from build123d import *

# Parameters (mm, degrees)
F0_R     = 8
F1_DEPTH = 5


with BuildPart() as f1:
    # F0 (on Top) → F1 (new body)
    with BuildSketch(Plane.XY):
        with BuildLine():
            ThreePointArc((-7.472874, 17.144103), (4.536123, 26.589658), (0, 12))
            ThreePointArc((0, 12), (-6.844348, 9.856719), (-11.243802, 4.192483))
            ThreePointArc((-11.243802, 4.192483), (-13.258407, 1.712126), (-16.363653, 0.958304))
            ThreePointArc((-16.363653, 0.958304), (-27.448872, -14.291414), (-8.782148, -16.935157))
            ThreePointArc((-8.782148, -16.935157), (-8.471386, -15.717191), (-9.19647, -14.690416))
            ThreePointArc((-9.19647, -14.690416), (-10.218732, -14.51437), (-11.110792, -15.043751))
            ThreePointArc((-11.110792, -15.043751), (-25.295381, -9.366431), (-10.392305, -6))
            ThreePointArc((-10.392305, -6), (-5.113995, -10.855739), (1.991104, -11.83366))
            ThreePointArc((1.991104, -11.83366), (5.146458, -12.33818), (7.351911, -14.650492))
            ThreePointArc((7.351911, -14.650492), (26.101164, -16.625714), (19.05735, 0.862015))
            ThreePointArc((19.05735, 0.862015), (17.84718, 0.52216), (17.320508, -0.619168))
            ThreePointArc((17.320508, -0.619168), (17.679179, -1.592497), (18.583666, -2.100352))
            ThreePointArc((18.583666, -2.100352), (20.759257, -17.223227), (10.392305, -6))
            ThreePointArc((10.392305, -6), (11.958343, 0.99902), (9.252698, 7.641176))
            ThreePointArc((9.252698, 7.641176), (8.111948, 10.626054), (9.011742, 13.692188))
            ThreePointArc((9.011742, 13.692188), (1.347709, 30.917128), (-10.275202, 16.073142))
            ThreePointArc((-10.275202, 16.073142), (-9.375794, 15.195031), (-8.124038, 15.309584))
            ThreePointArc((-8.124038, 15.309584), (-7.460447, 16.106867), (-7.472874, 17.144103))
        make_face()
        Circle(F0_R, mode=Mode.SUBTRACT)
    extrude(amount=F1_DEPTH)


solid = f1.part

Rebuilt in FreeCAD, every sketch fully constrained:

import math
import FreeCAD as App
import Part
import Sketcher

V = App.Vector
Q = App.Units.Quantity

doc = App.newDocument("Part")
body = doc.addObject("PartDesign::Body", "Body")

# Sketch on XY plane
sketch1 = body.newObject("Sketcher::SketchObject", "Sketch")
sketch1.AttachmentSupport = (doc.getObject("XY_Plane"), [""])
sketch1.MapMode = "FlatFace"
sketch1.addGeometry(Part.ArcOfCircle(Part.Circle(V(0, 20, 0), V(0, 0, 1), 8), math.radians(-90), math.radians(201)), False)
sketch1.addGeometry(Part.ArcOfCircle(Part.Circle(V(0, 0, 0), V(0, 0, 1), 12), math.radians(90), math.radians(160)), False)
sketch1.addGeometry(Part.ArcOfCircle(Part.Circle(V(-15.9, 5.9, 0), V(0, 0, 1), 5), math.radians(-95), math.radians(-20)), False)
sketch1.addGeometry(Part.ArcOfCircle(Part.Circle(V(-17.3, -10, 0), V(0, 0, 1), 11), math.radians(85), math.radians(321)), False)
sketch1.addGeometry(Part.ArcOfCircle(Part.Circle(V(-9.9, -16, 0), V(0, 0, 1), 1.5), math.radians(-39), math.radians(60)), False)
sketch1.addGeometry(Part.ArcOfCircle(Part.Circle(V(-9.9, -16, 0), V(0, 0, 1), 1.5), math.radians(60), math.radians(141)), False)
sketch1.addGeometry(Part.ArcOfCircle(Part.Circle(V(-17.3, -10, 0), V(0, 0, 1), 8), math.radians(30), math.radians(321)), False)
sketch1.addGeometry(Part.ArcOfCircle(Part.Circle(V(0, 0, 0), V(0, 0, 1), 12), math.radians(-150), math.radians(-80)), False)
sketch1.addGeometry(Part.ArcOfCircle(Part.Circle(V(2.8, -16.8, 0), V(0, 0, 1), 5), math.radians(25), math.radians(100)), False)
sketch1.addGeometry(Part.ArcOfCircle(Part.Circle(V(17.3, -10, 0), V(0, 0, 1), 11), math.radians(-155), math.radians(81)), False)
sketch1.addGeometry(Part.ArcOfCircle(Part.Circle(V(18.8, -0.6, 0), V(0, 0, 1), 1.5), math.radians(81), math.radians(180)), False)
sketch1.addGeometry(Part.ArcOfCircle(Part.Circle(V(18.8, -0.6, 0), V(0, 0, 1), 1.5), math.radians(180), math.radians(261)), False)
sketch1.addGeometry(Part.ArcOfCircle(Part.Circle(V(17.3, -10, 0), V(0, 0, 1), 8), math.radians(150), math.radians(441)), False)
sketch1.addGeometry(Part.ArcOfCircle(Part.Circle(V(0, 0, 0), V(0, 0, 1), 12), math.radians(-30), math.radians(40)), False)
sketch1.addGeometry(Part.ArcOfCircle(Part.Circle(V(13.1, 10.8, 0), V(0, 0, 1), 5), math.radians(145), math.radians(220)), False)
sketch1.addGeometry(Part.ArcOfCircle(Part.Circle(V(0, 20, 0), V(0, 0, 1), 11), math.radians(-35), math.radians(201)), False)
sketch1.addGeometry(Part.ArcOfCircle(Part.Circle(V(-8.9, 16.6, 0), V(0, 0, 1), 1.5), math.radians(-159), math.radians(-60)), False)
sketch1.addGeometry(Part.ArcOfCircle(Part.Circle(V(-8.9, 16.6, 0), V(0, 0, 1), 1.5), math.radians(-60), math.radians(21)), False)
sketch1.addGeometry(Part.Circle(V(0, 0, 0), V(0, 0, 1), 8), False)
sketch1.addConstraint(Sketcher.Constraint("Tangent", 0, 1, 1, 1))
sketch1.addConstraint(Sketcher.Constraint("Tangent", 1, 2, 2, 2))
sketch1.addConstraint(Sketcher.Constraint("Tangent", 2, 1, 3, 1))
sketch1.addConstraint(Sketcher.Constraint("Tangent", 3, 2, 4, 1))
sketch1.addConstraint(Sketcher.Constraint("Tangent", 4, 2, 5, 1))
sketch1.addConstraint(Sketcher.Constraint("Tangent", 5, 2, 6, 2))
sketch1.addConstraint(Sketcher.Constraint("Tangent", 6, 1, 7, 1))
sketch1.addConstraint(Sketcher.Constraint("Tangent", 7, 2, 8, 2))
sketch1.addConstraint(Sketcher.Constraint("Tangent", 8, 1, 9, 1))
sketch1.addConstraint(Sketcher.Constraint("Tangent", 9, 2, 10, 1))
sketch1.addConstraint(Sketcher.Constraint("Tangent", 10, 2, 11, 1))
sketch1.addConstraint(Sketcher.Constraint("Tangent", 11, 2, 12, 2))
sketch1.addConstraint(Sketcher.Constraint("Tangent", 12, 1, 13, 1))
sketch1.addConstraint(Sketcher.Constraint("Tangent", 13, 2, 14, 2))
sketch1.addConstraint(Sketcher.Constraint("Tangent", 14, 1, 15, 1))
sketch1.addConstraint(Sketcher.Constraint("Tangent", 15, 2, 16, 1))
sketch1.addConstraint(Sketcher.Constraint("Tangent", 16, 2, 17, 1))
sketch1.addConstraint(Sketcher.Constraint("Tangent", 17, 2, 0, 2))
sketch1.addConstraint(Sketcher.Constraint("Coincident", 1, 3, -1, 1))
sketch1.addConstraint(Sketcher.Constraint("Coincident", 7, 3, -1, 1))
sketch1.addConstraint(Sketcher.Constraint("Coincident", 13, 3, -1, 1))
sketch1.addConstraint(Sketcher.Constraint("Coincident", 18, 3, -1, 1))
sketch1.addConstraint(Sketcher.Constraint("Coincident", 6, 3, 3, 3))
sketch1.addConstraint(Sketcher.Constraint("Coincident", 12, 3, 9, 3))
sketch1.addConstraint(Sketcher.Constraint("Coincident", 15, 3, 0, 3))
sketch1.addConstraint(Sketcher.Constraint("Equal", 4, 5))
sketch1.addConstraint(Sketcher.Constraint("Equal", 0, 6))
sketch1.addConstraint(Sketcher.Constraint("Equal", 1, 7))
sketch1.addConstraint(Sketcher.Constraint("Equal", 2, 8))
sketch1.addConstraint(Sketcher.Constraint("Equal", 3, 9))
sketch1.addConstraint(Sketcher.Constraint("Equal", 5, 10))
sketch1.addConstraint(Sketcher.Constraint("Equal", 10, 11))
sketch1.addConstraint(Sketcher.Constraint("Equal", 7, 13))
sketch1.addConstraint(Sketcher.Constraint("Equal", 2, 14))
sketch1.addConstraint(Sketcher.Constraint("Equal", 9, 15))
sketch1.addConstraint(Sketcher.Constraint("Equal", 11, 16))
sketch1.addConstraint(Sketcher.Constraint("Equal", 12, 18))
sketch1.addConstraint(Sketcher.Constraint("PointOnObject", 0, 3, -2))
sketch1.addConstraint(Sketcher.Constraint("Horizontal", 6, 3, 9, 3))
sketch1.addConstraint(Sketcher.Constraint("Horizontal", 11, 3, 10, 2))
sketch1.addConstraint(Sketcher.Constraint("Vertical", 12, 3, 10, 2))
sketch1.addConstraint(Sketcher.Constraint("Diameter", 18, Q("16 mm")))
sketch1.addConstraint(Sketcher.Constraint("Radius", 2, Q("4.999999 mm")))
sketch1.addConstraint(Sketcher.Constraint("Radius", 3, Q("11 mm")))
sketch1.addConstraint(Sketcher.Constraint("Radius", 7, Q("11.999998 mm")))
sketch1.addConstraint(Sketcher.Constraint("DistanceY", 3, 3, -1, 1, Q("10 mm")))
sketch1.addConstraint(Sketcher.Constraint("DistanceX", 4, 3, 4, 2, Q("0.75 mm")))
sketch1.addConstraint(Sketcher.Constraint("DistanceX", 16, 3, 16, 2, Q("0.75 mm")))
sketch1.addConstraint(Sketcher.Constraint("DistanceX", 4, 3, 8, 3, Q("12.767201 mm")))
sketch1.addConstraint(Sketcher.Constraint("DistanceX", 15, 2, 15, 3, Q("10.275202 mm")))
pad1 = body.newObject("PartDesign::Pad", "Pad")
pad1.Profile = sketch1
pad1.Length = 5

doc.recompute()
